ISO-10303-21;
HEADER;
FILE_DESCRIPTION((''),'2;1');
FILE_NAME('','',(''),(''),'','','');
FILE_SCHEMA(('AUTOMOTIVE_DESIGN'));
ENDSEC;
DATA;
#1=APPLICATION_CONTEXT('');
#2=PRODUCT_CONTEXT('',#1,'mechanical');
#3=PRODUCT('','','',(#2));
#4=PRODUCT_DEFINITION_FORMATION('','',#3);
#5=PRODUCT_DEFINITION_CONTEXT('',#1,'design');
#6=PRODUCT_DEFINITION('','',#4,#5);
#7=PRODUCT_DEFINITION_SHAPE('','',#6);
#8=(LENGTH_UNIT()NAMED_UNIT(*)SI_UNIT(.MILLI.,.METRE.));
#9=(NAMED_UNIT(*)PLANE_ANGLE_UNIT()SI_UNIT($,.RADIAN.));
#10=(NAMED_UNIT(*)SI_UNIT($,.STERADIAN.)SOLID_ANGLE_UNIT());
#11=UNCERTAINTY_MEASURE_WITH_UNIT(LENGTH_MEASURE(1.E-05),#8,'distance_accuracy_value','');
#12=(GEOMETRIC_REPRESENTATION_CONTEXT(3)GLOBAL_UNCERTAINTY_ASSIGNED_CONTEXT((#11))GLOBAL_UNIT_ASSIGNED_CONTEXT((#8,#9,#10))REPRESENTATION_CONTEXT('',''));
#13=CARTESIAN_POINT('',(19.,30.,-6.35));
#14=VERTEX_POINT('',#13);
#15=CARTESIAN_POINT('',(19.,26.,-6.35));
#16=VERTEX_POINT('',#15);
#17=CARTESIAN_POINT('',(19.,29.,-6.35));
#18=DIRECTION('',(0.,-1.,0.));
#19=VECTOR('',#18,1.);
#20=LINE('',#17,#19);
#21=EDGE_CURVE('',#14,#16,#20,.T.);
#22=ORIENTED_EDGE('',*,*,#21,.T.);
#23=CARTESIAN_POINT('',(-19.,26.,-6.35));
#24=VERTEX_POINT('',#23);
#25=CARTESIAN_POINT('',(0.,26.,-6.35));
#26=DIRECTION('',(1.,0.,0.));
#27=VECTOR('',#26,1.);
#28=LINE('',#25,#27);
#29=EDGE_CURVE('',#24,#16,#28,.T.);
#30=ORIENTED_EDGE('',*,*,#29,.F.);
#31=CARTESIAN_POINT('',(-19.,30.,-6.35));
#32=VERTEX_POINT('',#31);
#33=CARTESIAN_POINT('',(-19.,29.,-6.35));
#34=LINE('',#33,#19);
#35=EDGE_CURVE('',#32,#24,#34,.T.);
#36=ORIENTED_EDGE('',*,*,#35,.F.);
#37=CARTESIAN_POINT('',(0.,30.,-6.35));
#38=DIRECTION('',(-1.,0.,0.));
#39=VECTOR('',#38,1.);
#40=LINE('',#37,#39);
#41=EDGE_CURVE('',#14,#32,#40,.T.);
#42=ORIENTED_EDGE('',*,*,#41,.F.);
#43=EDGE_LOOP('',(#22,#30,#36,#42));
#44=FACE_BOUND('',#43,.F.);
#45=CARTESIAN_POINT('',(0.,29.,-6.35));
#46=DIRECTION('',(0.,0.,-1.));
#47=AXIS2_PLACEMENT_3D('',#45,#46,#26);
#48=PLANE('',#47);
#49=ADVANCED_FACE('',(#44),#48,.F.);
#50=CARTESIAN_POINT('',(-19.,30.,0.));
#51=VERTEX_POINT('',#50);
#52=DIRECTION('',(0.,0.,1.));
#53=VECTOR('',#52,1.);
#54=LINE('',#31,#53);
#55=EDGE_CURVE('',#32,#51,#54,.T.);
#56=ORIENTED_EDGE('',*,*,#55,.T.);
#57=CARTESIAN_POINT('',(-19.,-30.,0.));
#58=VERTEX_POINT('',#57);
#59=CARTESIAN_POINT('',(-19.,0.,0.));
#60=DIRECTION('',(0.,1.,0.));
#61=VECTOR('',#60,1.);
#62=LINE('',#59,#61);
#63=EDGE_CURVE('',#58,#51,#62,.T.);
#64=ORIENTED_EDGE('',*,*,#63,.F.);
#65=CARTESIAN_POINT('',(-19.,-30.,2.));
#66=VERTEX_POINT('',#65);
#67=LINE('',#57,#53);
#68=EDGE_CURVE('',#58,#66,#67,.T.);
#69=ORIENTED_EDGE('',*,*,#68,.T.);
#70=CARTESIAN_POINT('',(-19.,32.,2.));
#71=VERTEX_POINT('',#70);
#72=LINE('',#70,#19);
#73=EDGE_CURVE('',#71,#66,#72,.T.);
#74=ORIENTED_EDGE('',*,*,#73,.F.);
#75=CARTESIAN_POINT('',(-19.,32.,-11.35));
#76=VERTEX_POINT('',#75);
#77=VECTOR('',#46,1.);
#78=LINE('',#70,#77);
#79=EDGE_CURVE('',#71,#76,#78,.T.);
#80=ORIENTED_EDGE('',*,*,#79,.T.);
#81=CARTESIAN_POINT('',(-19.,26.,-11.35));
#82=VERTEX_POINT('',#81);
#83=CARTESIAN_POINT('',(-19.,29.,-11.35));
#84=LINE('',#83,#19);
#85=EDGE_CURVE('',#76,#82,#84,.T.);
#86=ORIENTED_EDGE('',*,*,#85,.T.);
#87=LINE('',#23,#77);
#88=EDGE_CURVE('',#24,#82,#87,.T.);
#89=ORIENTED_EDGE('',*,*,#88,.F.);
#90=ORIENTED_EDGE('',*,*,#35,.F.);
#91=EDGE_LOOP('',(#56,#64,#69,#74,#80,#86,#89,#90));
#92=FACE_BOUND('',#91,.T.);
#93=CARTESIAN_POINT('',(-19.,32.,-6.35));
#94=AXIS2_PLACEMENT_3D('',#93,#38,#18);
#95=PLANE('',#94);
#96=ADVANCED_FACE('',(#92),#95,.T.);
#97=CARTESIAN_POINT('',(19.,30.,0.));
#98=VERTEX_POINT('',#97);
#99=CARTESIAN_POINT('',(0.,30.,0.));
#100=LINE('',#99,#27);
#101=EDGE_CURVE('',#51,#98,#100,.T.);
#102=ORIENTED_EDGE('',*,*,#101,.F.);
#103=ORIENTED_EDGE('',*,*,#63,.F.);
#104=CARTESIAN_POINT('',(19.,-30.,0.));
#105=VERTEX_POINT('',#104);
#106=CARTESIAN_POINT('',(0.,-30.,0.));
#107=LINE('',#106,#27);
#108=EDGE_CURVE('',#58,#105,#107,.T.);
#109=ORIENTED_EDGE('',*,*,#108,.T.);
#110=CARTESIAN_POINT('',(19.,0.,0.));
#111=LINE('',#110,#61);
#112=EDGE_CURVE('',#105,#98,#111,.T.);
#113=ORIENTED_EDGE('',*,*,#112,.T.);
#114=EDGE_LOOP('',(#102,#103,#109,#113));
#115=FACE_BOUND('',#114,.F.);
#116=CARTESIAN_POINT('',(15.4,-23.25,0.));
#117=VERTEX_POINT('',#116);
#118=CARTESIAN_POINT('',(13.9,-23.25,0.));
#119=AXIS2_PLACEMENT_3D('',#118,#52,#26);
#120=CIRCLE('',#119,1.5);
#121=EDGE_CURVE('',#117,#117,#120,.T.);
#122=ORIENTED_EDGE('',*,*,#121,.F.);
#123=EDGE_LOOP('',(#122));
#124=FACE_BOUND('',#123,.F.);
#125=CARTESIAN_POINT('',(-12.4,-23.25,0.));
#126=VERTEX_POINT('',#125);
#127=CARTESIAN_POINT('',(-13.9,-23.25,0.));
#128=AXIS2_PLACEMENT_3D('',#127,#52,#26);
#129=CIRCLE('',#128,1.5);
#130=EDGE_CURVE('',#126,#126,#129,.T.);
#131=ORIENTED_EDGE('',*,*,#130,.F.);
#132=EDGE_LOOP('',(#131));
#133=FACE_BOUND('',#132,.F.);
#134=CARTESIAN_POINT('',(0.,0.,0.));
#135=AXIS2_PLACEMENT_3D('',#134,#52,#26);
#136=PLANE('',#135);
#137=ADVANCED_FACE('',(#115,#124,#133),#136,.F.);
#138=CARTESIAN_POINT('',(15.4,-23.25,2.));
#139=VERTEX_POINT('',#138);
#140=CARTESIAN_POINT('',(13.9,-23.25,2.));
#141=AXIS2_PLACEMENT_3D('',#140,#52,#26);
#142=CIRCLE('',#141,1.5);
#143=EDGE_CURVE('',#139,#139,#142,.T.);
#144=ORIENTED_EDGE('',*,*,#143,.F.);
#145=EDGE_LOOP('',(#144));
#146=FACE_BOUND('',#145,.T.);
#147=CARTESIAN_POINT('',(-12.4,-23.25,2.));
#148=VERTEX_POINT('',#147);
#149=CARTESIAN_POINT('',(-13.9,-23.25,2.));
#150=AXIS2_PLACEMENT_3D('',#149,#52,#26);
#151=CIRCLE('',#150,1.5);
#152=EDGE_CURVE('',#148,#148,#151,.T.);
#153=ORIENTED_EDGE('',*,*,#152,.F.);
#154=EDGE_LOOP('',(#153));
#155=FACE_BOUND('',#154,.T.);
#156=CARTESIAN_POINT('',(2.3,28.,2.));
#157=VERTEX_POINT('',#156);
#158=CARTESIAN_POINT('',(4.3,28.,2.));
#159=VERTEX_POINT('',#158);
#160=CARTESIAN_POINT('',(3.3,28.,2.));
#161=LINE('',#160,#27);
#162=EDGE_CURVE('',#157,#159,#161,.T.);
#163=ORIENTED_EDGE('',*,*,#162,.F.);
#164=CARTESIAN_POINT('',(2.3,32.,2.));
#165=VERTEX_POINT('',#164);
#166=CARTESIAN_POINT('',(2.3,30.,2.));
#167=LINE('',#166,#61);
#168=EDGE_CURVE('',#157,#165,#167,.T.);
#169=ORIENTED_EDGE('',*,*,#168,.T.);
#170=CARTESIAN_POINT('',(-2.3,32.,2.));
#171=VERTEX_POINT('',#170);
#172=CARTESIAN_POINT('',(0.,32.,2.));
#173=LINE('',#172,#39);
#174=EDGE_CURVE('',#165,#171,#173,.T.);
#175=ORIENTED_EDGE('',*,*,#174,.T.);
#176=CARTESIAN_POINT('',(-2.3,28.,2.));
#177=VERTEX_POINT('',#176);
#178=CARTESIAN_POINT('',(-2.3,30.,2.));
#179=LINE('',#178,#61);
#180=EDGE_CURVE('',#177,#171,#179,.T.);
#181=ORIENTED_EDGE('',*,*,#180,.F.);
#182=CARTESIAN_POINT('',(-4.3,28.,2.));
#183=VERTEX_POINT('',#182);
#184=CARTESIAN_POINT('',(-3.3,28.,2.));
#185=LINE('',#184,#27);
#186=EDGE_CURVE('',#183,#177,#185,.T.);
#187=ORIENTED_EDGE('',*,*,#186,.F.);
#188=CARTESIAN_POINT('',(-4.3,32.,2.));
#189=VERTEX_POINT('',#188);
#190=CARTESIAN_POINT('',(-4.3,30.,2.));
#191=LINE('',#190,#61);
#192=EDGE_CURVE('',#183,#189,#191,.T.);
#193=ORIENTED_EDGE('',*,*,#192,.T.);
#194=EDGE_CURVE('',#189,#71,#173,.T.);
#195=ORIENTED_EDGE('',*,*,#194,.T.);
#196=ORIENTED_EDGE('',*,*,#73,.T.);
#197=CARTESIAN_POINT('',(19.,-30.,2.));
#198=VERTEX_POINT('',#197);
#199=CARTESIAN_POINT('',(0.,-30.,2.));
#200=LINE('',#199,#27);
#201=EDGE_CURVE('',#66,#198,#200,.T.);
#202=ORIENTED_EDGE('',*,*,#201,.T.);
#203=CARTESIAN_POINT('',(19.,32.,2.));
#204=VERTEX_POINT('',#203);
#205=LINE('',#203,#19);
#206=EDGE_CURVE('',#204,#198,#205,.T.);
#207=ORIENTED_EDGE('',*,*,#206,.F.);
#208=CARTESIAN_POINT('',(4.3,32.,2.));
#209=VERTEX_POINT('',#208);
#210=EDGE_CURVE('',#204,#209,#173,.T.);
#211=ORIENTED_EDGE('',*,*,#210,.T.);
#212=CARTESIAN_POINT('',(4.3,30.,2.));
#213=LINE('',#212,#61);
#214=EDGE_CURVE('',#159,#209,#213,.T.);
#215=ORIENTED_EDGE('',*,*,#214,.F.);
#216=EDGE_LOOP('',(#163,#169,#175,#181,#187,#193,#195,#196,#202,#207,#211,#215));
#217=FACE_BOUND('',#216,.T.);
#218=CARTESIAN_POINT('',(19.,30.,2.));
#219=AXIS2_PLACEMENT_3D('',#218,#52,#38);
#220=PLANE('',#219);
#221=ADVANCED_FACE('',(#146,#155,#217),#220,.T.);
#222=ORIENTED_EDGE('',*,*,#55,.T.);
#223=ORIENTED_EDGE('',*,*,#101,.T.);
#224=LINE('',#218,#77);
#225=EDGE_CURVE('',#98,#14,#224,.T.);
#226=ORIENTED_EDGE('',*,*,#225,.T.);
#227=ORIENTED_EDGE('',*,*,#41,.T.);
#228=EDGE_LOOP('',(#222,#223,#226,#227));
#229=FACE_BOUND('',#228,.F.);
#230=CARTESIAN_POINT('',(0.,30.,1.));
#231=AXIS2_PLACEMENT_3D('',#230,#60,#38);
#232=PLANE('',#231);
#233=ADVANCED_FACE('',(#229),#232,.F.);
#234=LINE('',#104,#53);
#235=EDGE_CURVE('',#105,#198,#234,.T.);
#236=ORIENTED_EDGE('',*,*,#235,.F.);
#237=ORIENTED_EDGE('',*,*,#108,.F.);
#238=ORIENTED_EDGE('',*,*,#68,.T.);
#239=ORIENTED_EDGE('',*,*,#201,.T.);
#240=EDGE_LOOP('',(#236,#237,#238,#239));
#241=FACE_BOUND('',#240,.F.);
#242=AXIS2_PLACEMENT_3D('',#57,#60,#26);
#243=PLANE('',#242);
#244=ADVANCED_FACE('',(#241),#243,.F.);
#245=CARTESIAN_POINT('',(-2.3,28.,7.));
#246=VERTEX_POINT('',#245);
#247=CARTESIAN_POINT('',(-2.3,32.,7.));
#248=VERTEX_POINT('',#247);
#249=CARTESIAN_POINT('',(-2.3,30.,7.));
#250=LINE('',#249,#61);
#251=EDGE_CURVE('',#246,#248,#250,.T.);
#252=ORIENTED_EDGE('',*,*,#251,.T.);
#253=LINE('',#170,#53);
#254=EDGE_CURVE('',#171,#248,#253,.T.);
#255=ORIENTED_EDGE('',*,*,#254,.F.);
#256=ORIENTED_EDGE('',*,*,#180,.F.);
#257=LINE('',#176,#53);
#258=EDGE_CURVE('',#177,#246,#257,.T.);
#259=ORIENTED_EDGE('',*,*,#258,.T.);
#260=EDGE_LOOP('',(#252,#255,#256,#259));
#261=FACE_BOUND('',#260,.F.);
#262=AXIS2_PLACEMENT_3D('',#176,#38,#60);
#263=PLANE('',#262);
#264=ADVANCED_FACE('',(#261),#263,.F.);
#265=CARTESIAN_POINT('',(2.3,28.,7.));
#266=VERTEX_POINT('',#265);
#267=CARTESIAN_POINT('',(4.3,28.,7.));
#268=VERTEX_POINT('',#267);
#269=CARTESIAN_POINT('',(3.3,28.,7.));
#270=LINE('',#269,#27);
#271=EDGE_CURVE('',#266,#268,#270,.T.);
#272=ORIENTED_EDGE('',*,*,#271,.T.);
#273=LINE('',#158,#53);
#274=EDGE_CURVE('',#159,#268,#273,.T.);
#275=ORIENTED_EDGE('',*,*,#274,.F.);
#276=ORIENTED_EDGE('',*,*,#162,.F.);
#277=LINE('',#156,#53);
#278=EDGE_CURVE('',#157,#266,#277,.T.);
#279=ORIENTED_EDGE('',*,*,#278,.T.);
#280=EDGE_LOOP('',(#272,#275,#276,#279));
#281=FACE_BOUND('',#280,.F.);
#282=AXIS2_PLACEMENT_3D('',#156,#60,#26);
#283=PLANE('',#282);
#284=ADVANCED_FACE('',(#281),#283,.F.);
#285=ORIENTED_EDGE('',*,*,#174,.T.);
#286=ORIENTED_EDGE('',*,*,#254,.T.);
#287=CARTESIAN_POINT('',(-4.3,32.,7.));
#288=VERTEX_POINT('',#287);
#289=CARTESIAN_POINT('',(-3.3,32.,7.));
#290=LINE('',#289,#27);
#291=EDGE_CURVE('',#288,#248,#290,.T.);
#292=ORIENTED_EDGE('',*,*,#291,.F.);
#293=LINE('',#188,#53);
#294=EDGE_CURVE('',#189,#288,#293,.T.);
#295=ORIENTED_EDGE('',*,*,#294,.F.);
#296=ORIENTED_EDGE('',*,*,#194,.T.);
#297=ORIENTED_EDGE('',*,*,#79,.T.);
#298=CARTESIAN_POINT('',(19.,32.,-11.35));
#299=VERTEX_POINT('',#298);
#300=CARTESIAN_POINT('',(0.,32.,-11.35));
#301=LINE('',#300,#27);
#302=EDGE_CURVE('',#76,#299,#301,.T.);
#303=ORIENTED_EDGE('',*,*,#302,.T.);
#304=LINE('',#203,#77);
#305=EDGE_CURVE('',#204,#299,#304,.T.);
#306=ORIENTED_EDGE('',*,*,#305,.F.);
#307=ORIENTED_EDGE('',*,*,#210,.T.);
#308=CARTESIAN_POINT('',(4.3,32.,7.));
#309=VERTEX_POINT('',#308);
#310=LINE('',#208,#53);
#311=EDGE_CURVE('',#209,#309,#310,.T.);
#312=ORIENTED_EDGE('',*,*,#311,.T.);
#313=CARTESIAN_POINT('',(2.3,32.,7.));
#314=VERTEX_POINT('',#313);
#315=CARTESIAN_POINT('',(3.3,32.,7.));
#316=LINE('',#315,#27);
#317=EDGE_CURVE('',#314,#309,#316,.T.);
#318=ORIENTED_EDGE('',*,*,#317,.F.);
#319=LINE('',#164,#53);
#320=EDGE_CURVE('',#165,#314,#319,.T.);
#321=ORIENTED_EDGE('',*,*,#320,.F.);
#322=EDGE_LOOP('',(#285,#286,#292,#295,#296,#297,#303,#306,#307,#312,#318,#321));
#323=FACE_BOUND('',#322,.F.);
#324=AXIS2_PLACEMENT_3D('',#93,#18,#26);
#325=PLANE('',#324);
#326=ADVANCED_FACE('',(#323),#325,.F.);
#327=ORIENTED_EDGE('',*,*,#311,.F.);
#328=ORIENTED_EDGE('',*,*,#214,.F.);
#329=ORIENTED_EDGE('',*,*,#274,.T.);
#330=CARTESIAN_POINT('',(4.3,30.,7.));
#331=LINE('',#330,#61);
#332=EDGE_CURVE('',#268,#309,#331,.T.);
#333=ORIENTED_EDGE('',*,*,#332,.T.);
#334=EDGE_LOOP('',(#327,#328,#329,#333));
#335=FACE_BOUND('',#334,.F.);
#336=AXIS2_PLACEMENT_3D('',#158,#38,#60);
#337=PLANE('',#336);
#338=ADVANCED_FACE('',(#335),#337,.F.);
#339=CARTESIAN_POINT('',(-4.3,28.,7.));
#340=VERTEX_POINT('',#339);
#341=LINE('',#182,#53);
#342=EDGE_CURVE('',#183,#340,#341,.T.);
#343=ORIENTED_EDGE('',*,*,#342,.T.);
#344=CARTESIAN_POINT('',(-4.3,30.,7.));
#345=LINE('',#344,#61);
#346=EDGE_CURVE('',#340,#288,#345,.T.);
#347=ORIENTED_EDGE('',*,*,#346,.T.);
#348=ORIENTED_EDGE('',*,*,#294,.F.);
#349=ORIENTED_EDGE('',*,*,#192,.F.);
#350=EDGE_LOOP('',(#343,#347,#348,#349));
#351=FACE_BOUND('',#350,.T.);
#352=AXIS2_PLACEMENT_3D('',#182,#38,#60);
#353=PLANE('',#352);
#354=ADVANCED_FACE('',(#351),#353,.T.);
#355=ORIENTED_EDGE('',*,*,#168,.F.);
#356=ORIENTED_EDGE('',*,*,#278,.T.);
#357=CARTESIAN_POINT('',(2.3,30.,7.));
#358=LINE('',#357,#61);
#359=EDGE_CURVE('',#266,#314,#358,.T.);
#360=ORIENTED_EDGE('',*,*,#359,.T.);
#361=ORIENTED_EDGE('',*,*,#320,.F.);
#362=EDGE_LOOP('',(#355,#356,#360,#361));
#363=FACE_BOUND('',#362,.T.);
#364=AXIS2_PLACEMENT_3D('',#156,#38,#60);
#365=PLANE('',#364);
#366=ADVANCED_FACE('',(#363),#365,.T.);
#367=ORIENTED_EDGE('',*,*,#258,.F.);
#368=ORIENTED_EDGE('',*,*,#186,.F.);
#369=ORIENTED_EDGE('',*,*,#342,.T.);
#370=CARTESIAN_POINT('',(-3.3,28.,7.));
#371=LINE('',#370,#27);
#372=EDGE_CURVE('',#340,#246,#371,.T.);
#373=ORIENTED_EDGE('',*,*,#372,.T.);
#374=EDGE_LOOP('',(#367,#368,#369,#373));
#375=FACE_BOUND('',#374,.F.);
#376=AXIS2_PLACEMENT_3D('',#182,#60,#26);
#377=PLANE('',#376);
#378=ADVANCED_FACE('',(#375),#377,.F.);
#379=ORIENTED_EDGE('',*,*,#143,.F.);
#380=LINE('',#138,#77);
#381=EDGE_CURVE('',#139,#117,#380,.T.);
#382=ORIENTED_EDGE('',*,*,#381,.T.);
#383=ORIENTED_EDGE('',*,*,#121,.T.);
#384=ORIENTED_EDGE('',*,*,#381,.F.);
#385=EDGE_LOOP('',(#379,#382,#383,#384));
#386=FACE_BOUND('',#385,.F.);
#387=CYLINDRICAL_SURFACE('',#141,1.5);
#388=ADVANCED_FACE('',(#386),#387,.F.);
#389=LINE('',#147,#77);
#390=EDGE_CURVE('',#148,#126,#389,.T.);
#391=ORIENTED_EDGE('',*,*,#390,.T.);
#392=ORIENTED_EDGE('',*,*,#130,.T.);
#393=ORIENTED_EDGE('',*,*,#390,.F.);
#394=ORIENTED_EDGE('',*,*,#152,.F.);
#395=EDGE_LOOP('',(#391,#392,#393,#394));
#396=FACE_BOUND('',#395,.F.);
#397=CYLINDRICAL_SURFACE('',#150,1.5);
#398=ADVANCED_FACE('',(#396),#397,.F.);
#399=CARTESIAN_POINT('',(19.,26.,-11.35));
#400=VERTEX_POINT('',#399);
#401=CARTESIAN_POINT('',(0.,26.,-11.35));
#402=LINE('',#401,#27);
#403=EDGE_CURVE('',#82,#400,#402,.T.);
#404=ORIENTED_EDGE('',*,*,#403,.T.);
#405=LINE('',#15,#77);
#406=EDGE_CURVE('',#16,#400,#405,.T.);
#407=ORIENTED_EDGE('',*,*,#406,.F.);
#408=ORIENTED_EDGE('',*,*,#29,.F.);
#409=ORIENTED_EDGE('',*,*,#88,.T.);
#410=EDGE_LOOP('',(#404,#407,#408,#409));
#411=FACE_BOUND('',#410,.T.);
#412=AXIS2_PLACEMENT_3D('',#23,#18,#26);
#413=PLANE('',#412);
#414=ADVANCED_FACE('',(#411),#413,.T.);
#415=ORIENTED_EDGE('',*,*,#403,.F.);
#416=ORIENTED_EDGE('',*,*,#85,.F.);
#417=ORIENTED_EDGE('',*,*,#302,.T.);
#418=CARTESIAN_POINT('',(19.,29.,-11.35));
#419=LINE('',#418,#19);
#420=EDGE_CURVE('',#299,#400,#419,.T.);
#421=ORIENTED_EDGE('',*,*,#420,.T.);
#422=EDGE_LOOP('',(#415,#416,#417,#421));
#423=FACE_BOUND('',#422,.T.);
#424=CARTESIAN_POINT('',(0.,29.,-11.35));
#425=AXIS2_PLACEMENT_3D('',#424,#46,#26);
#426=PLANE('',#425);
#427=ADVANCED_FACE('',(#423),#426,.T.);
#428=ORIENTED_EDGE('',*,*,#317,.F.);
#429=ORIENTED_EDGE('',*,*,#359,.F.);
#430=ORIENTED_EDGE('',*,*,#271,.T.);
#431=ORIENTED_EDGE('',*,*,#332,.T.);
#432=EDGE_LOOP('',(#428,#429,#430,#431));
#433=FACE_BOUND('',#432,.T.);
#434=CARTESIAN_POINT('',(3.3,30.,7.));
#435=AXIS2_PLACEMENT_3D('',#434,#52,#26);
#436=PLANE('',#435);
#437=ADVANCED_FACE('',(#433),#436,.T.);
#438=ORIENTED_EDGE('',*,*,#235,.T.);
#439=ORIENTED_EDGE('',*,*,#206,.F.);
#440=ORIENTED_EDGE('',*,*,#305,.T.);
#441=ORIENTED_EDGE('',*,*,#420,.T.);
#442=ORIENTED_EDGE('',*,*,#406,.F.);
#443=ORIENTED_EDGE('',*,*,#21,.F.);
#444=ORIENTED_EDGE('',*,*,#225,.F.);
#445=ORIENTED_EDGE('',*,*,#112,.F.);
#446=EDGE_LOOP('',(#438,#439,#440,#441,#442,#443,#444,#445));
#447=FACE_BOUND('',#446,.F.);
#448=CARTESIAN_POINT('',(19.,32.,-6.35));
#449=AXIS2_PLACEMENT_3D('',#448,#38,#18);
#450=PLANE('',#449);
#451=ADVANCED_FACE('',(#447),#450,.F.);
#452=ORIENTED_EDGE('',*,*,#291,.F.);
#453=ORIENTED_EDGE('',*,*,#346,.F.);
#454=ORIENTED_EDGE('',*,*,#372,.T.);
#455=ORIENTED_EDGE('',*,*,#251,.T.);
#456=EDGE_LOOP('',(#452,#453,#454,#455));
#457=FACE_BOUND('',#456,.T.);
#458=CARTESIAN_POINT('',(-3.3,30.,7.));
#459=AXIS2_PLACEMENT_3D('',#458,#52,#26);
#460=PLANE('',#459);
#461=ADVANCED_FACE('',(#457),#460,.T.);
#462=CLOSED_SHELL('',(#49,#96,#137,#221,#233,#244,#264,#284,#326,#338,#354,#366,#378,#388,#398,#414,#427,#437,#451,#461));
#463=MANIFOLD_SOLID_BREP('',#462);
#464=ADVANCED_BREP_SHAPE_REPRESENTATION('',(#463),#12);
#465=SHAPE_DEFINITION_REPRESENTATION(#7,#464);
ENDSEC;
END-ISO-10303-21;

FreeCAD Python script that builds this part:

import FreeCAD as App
import Part
import Sketcher

V = App.Vector
Q = App.Units.Quantity


def add_polygon(sketch, points):
    """Adds a closed chain of lines whose ends are joined by coincident constraints."""
    first, n = sketch.GeometryCount, len(points)
    for a, b in zip(points, points[1:] + points[:1]):
        sketch.addGeometry(Part.LineSegment(App.Vector(*a, 0), App.Vector(*b, 0)), False)
    for i in range(n):
        sketch.addConstraint(Sketcher.Constraint("Coincident", first + i, 2, first + (i + 1) % n, 1))

doc = App.newDocument("Part")
body = doc.addObject("PartDesign::Body", "Body")

sketch1 = body.newObject("Sketcher::SketchObject", "Sketch")
sketch1.AttachmentSupport = (doc.getObject("XY_Plane"), [""])
sketch1.MapMode = "FlatFace"
add_polygon(sketch1, [(-19, 30), (-19, -30), (19, -30), (19, 30)])
sketch1.addConstraint(Sketcher.Constraint("Vertical", 0))
sketch1.addConstraint(Sketcher.Constraint("Horizontal", 1))
sketch1.addConstraint(Sketcher.Constraint("Vertical", 2))
sketch1.addConstraint(Sketcher.Constraint("Horizontal", 3))
sketch1.addConstraint(Sketcher.Constraint("Symmetric", 0, 2, 2, 2, -1, 1))
sketch1.addConstraint(Sketcher.Constraint("DistanceX", 1, 1, 1, 2, Q("38 mm")))
sketch1.addConstraint(Sketcher.Constraint("DistanceY", 0, 2, 0, 1, Q("60 mm")))
pad1 = body.newObject("PartDesign::Pad", "Pad")
pad1.Profile = sketch1
pad1.Length = 2

sketch2 = body.newObject("Sketcher::SketchObject", "Sketch001")
sketch2.AttachmentSupport = (doc.getObject("XZ_Plane"), [""])
sketch2.MapMode = "FlatFace"
sketch2.AttachmentOffset = App.Placement(V(0, 0, -30), App.Rotation())
add_polygon(sketch2, [(19, 2), (19, -6), (-19, -6), (-19, 2)])
sketch2.addConstraint(Sketcher.Constraint("Vertical", 0))
sketch2.addConstraint(Sketcher.Constraint("Horizontal", 1))
sketch2.addConstraint(Sketcher.Constraint("Vertical", 2))
sketch2.addConstraint(Sketcher.Constraint("Horizontal", 3))
sketch2.addConstraint(Sketcher.Constraint("DistanceX", 1, 2, 1, 1, Q("38 mm")))
sketch2.addConstraint(Sketcher.Constraint("DistanceX", -1, 1, 0, 2, Q("19 mm")))
sketch2.addConstraint(Sketcher.Constraint("DistanceY", -1, 1, 2, 2, Q("2 mm")))
sketch2.addConstraint(Sketcher.Constraint("DistanceY", 0, 2, 0, 1, Q("8.35 mm")))
pad2 = body.newObject("PartDesign::Pad", "Pad001")
pad2.Profile = sketch2
pad2.Length = 2
pad2.Reversed = True

sketch3 = body.newObject("Sketcher::SketchObject", "Sketch002")
sketch3.AttachmentSupport = (doc.getObject("XY_Plane"), [""])
sketch3.MapMode = "FlatFace"
sketch3.AttachmentOffset = App.Placement(V(0, 0, -6.35), App.Rotation())
add_polygon(sketch3, [(-19, 26), (-19, 32), (19, 32), (19, 26)])
sketch3.addConstraint(Sketcher.Constraint("Vertical", 0))
sketch3.addConstraint(Sketcher.Constraint("Horizontal", 1))
sketch3.addConstraint(Sketcher.Constraint("Vertical", 2))
sketch3.addConstraint(Sketcher.Constraint("Horizontal", 3))
sketch3.addConstraint(Sketcher.Constraint("DistanceX", 1, 1, 1, 2, Q("38 mm")))
sketch3.addConstraint(Sketcher.Constraint("DistanceY", 0, 1, 0, 2, Q("6 mm")))
sketch3.addConstraint(Sketcher.Constraint("DistanceX", 0, 2, -1, 1, Q("19 mm")))
sketch3.addConstraint(Sketcher.Constraint("DistanceY", -1, 1, 0, 2, Q("32 mm")))
pad3 = body.newObject("PartDesign::Pad", "Pad002")
pad3.Profile = sketch3
pad3.Length = 5
pad3.Reversed = True

sketch4 = body.newObject("Sketcher::SketchObject", "Sketch003")
sketch4.AttachmentSupport = (doc.getObject("XY_Plane"), [""])
sketch4.MapMode = "FlatFace"
sketch4.AttachmentOffset = App.Placement(V(0, 0, 2), App.Rotation())
add_polygon(sketch4, [(-4.3, 32), (-4.3, 28), (-2.3, 28), (-2.3, 32)])
add_polygon(sketch4, [(2.3, 32), (2.3, 28), (4.3, 28), (4.3, 32)])
sketch4.addConstraint(Sketcher.Constraint("Vertical", 0))
sketch4.addConstraint(Sketcher.Constraint("Horizontal", 1))
sketch4.addConstraint(Sketcher.Constraint("Vertical", 2))
sketch4.addConstraint(Sketcher.Constraint("Horizontal", 3))
sketch4.addConstraint(Sketcher.Constraint("Vertical", 4))
sketch4.addConstraint(Sketcher.Constraint("Horizontal", 5))
sketch4.addConstraint(Sketcher.Constraint("Vertical", 6))
sketch4.addConstraint(Sketcher.Constraint("Horizontal", 7))
sketch4.addConstraint(Sketcher.Constraint("Symmetric", 1, 2, 4, 2, -2))
sketch4.addConstraint(Sketcher.Constraint("Symmetric", 3, 2, 6, 2, -2))
sketch4.addConstraint(Sketcher.Constraint("DistanceX", 1, 1, 1, 2, Q("2 mm")))
sketch4.addConstraint(Sketcher.Constraint("DistanceY", 0, 2, 0, 1, Q("4 mm")))
sketch4.addConstraint(Sketcher.Constraint("DistanceY", -1, 1, 0, 2, Q("28 mm")))
sketch4.addConstraint(Sketcher.Constraint("DistanceX", 0, 2, -1, 1, Q("4.3 mm")))
pad4 = body.newObject("PartDesign::Pad", "Pad003")
pad4.Profile = sketch4
pad4.Length = 5

sketch5 = body.newObject("Sketcher::SketchObject", "Sketch004")
sketch5.AttachmentSupport = (doc.getObject("XY_Plane"), [""])
sketch5.MapMode = "FlatFace"
sketch5.AttachmentOffset = App.Placement(V(0, 0, 2), App.Rotation())
sketch5.addGeometry(Part.Circle(V(-13.9, -23.2, 0), V(0, 0, 1), 1.5), False)
sketch5.addGeometry(Part.Circle(V(13.9, -23.2, 0), V(0, 0, 1), 1.5), False)
sketch5.addConstraint(Sketcher.Constraint("Equal", 0, 1))
sketch5.addConstraint(Sketcher.Constraint("Symmetric", 0, 3, 1, 3, -2))
sketch5.addConstraint(Sketcher.Constraint("Diameter", 0, Q("3 mm")))
sketch5.addConstraint(Sketcher.Constraint("DistanceX", 0, 3, -1, 1, Q("13.9 mm")))
sketch5.addConstraint(Sketcher.Constraint("DistanceY", 0, 3, -1, 1, Q("23.25 mm")))
pocket1 = body.newObject("PartDesign::Pocket", "Pocket")
pocket1.Profile = sketch5
pocket1.Length = 25

doc.recompute()
